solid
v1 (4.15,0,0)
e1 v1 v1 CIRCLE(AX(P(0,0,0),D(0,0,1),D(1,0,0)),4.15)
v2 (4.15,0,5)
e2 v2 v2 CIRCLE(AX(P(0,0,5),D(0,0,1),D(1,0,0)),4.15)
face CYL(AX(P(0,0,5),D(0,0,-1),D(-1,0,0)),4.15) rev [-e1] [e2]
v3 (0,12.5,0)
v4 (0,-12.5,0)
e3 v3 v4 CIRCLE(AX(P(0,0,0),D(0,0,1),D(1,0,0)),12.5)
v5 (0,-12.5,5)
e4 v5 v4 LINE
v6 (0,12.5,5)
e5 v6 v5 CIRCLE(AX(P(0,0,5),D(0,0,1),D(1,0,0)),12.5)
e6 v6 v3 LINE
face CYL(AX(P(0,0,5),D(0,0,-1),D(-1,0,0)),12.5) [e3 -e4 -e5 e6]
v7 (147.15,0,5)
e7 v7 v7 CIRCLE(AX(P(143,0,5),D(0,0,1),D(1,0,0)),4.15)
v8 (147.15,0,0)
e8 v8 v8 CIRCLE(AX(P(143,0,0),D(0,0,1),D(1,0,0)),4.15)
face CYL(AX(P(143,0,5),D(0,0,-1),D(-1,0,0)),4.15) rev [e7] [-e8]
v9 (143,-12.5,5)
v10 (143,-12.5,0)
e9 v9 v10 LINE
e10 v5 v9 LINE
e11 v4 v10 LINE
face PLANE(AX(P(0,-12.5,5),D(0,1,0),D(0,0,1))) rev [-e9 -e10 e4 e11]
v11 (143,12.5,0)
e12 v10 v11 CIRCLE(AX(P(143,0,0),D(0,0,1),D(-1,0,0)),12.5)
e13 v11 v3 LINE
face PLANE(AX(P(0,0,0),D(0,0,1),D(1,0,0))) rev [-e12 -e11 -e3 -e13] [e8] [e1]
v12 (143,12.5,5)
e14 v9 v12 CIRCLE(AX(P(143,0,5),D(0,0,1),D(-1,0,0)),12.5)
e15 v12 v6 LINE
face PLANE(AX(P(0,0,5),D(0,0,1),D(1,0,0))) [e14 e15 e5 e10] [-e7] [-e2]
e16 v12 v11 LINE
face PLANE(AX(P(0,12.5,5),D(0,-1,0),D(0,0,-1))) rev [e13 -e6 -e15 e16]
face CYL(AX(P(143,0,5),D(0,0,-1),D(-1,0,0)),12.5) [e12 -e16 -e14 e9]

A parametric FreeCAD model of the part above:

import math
import FreeCAD as App
import Part
import Sketcher

V = App.Vector

doc = App.newDocument("Part")
body = doc.addObject("PartDesign::Body", "Body")

sketch1 = doc.addObject("Sketcher::SketchObject", "Sketch")
body.addObject(sketch1)
sketch1.AttachmentSupport = (doc.XY_Plane, [""])
sketch1.MapMode = "FlatFace"
sketch1.addGeometry([
    Part.LineSegment(V(143, 12.5, 0), V(0, 12.5, 0)),
    Part.ArcOfCircle(Part.Circle(V(0, 0, 0), V(0, 0, 1), 12.5), math.radians(90), math.radians(270)),
    Part.LineSegment(V(0, -12.5, 0), V(143, -12.5, 0)),
    Part.ArcOfCircle(Part.Circle(V(143, 0, 0), V(0, 0, 1), 12.5), math.radians(-90), math.radians(90)),
    Part.Circle(V(143, 0, 0), V(0, 0, 1), 4.2),
    Part.Circle(V(0, 0, 0), V(0, 0, 1), 4.2),
], False)
sketch1.addConstraint([
    Sketcher.Constraint("Tangent", 0, 2, 1, 1),
    Sketcher.Constraint("Tangent", 1, 2, 2, 1),
    Sketcher.Constraint("Tangent", 2, 2, 3, 1),
    Sketcher.Constraint("Tangent", 3, 2, 0, 1),
    Sketcher.Constraint("Horizontal", 0),
    Sketcher.Constraint("Horizontal", 2),
    Sketcher.Constraint("Coincident", 1, 3, -1, 1),
    Sketcher.Constraint("Coincident", 5, 3, -1, 1),
    Sketcher.Constraint("Coincident", 4, 3, 3, 3),
    Sketcher.Constraint("Equal", 4, 5),
    Sketcher.Constraint("Diameter", 4, 8.3),
    Sketcher.Constraint("Radius", 1, 12.5),
    Sketcher.Constraint("DistanceX", 0, 2, 0, 1, 143.0),
])
pad1 = doc.addObject("PartDesign::Pad", "Pad")
body.addObject(pad1)
pad1.Profile = sketch1
pad1.Length = 5

doc.recompute()
